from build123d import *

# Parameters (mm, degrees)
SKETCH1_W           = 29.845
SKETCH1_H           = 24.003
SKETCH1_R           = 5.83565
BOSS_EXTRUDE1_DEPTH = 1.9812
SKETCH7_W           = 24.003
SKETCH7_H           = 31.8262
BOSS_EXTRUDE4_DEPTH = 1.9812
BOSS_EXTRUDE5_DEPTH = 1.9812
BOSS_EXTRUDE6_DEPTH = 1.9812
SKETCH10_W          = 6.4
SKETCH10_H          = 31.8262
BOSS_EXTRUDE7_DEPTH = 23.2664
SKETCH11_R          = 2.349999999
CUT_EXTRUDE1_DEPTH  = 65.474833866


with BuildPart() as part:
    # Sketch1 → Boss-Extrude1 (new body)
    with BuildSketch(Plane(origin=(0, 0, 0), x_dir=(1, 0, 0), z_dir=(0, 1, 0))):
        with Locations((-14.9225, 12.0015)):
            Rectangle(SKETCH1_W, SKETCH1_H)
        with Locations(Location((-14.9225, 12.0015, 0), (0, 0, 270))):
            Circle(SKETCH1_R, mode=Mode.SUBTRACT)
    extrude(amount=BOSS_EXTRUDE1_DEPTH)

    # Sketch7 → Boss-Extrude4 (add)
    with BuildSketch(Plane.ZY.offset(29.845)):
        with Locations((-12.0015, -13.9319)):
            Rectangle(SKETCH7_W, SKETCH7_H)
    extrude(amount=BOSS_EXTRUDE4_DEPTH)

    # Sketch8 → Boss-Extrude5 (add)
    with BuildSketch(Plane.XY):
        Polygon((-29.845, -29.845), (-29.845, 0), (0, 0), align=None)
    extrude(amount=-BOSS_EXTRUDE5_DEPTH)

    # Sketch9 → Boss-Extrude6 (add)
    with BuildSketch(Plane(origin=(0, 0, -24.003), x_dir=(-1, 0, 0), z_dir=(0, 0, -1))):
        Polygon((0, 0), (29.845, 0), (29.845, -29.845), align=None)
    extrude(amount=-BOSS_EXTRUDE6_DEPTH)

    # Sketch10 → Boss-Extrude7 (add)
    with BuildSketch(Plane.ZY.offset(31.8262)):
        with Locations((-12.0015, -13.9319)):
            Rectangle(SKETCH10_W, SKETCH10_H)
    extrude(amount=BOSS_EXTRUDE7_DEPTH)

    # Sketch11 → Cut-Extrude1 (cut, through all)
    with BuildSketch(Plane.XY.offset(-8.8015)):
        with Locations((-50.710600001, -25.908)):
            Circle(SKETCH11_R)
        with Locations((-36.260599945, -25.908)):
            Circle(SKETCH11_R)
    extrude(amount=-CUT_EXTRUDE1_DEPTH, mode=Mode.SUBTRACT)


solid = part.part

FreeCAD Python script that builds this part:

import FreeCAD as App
import Part
import Sketcher
Q = App.Units.Quantity


def add_polygon(sketch, points):
    """Adds a closed chain of lines whose ends are joined by coincident constraints."""
    first, n = sketch.GeometryCount, len(points)
    for a, b in zip(points, points[1:] + points[:1]):
        sketch.addGeometry(Part.LineSegment(App.Vector(*a, 0), App.Vector(*b, 0)), False)
    for i in range(n):
        sketch.addConstraint(Sketcher.Constraint("Coincident", first + i, 2, first + (i + 1) % n, 1))

doc = App.newDocument("Part")
body = doc.addObject("PartDesign::Body", "Body")

# Sketch on XZ plane
sketch1 = body.newObject("Sketcher::SketchObject", "Sketch")
sketch1.AttachmentSupport = (doc.getObject("XZ_Plane"), [""])
sketch1.MapMode = "FlatFace"
add_polygon(sketch1, [(-30, -24), (-30, 0), (0, 0), (0, -24)])  # lines 0-3
sketch1.addGeometry(Part.Circle(App.Vector(-15, -12, 0), App.Vector(0, 0, 1), 6), False)  # 4
sketch1.addConstraint(Sketcher.Constraint("Vertical", 0))
sketch1.addConstraint(Sketcher.Constraint("Horizontal", 1))
sketch1.addConstraint(Sketcher.Constraint("Vertical", 2))
sketch1.addConstraint(Sketcher.Constraint("Horizontal", 3))
sketch1.addConstraint(Sketcher.Constraint("Coincident", 1, 2, -1, 1))
sketch1.addConstraint(Sketcher.Constraint("Diameter", 4, Q("0.4595 in")))
sketch1.addConstraint(Sketcher.Constraint("DistanceX", 1, 1, 1, 2, Q("1.175 in")))
sketch1.addConstraint(Sketcher.Constraint("DistanceY", 0, 1, 0, 2, Q("0.945 in")))
sketch1.addConstraint(Sketcher.Constraint("DistanceX", 4, 3, -1, 1, Q("0.5875 in")))
sketch1.addConstraint(Sketcher.Constraint("DistanceY", 4, 3, -1, 1, Q("0.4725 in")))
pad1 = body.newObject("PartDesign::Pad", "Pad")
pad1.Profile = sketch1
pad1.Length = Q("0.078 in")
pad1.Reversed = True

# Sketch on YZ plane
sketch2 = body.newObject("Sketcher::SketchObject", "Sketch001")
sketch2.AttachmentSupport = (doc.getObject("YZ_Plane"), [""])
sketch2.MapMode = "FlatFace"
sketch2.AttachmentOffset = App.Placement(App.Vector(0, 0, -1.175 * 25.4), App.Rotation())
add_polygon(sketch2, [(2, -24), (-30, -24), (-30, 0), (2, 0)])  # lines 0-3
sketch2.addConstraint(Sketcher.Constraint("Horizontal", 0))
sketch2.addConstraint(Sketcher.Constraint("Vertical", 1))
sketch2.addConstraint(Sketcher.Constraint("Horizontal", 2))
sketch2.addConstraint(Sketcher.Constraint("Vertical", 3))
sketch2.addConstraint(Sketcher.Constraint("PointOnObject", 1, 2, -1))
sketch2.addConstraint(Sketcher.Constraint("DistanceX", 0, 2, 0, 1, Q("1.253 in")))
sketch2.addConstraint(Sketcher.Constraint("DistanceY", 1, 1, 1, 2, Q("0.945 in")))
sketch2.addConstraint(Sketcher.Constraint("DistanceX", 0, 2, -1, 1, Q("1.175 in")))
pad2 = body.newObject("PartDesign::Pad", "Pad001")
pad2.Profile = sketch2
pad2.Length = Q("0.078 in")
pad2.Reversed = True

# Sketch on XY plane
sketch3 = body.newObject("Sketcher::SketchObject", "Sketch002")
sketch3.AttachmentSupport = (doc.getObject("XY_Plane"), [""])
sketch3.MapMode = "FlatFace"
add_polygon(sketch3, [(-30, 0), (-30, -30), (0, 0)])  # lines 0-2
sketch3.addConstraint(Sketcher.Constraint("Vertical", 0))
sketch3.addConstraint(Sketcher.Constraint("Horizontal", 2))
sketch3.addConstraint(Sketcher.Constraint("Coincident", 1, 2, -1, 1))
sketch3.addConstraint(Sketcher.Constraint("Equal", 2, 0))
sketch3.addConstraint(Sketcher.Constraint("DistanceX", 2, 2, 2, 1, Q("1.175 in")))
pad3 = body.newObject("PartDesign::Pad", "Pad002")
pad3.Profile = sketch3
pad3.Length = Q("0.078 in")
pad3.Reversed = True

# Sketch on XY plane
sketch4 = body.newObject("Sketcher::SketchObject", "Sketch003")
sketch4.AttachmentSupport = (doc.getObject("XY_Plane"), [""])
sketch4.MapMode = "FlatFace"
sketch4.AttachmentOffset = App.Placement(App.Vector(0, 0, -0.945 * 25.4), App.Rotation())
add_polygon(sketch4, [(-30, 0), (0, 0), (-30, -30)])  # lines 0-2
sketch4.addConstraint(Sketcher.Constraint("Horizontal", 0))
sketch4.addConstraint(Sketcher.Constraint("Vertical", 2))
sketch4.addConstraint(Sketcher.Constraint("Coincident", 0, 2, -1, 1))
sketch4.addConstraint(Sketcher.Constraint("Equal", 0, 2))
sketch4.addConstraint(Sketcher.Constraint("DistanceX", 0, 1, 0, 2, Q("1.175 in")))
pad4 = body.newObject("PartDesign::Pad", "Pad003")
pad4.Profile = sketch4
pad4.Length = Q("0.078 in")

# Sketch on YZ plane
sketch5 = body.newObject("Sketcher::SketchObject", "Sketch004")
sketch5.AttachmentSupport = (doc.getObject("YZ_Plane"), [""])
sketch5.MapMode = "FlatFace"
sketch5.AttachmentOffset = App.Placement(App.Vector(0, 0, -1.253 * 25.4), App.Rotation())
add_polygon(sketch5, [(2, -15), (-30, -15), (-30, -9), (2, -9)])  # lines 0-3
sketch5.addConstraint(Sketcher.Constraint("Horizontal", 0))
sketch5.addConstraint(Sketcher.Constraint("Vertical", 1))
sketch5.addConstraint(Sketcher.Constraint("Horizontal", 2))
sketch5.addConstraint(Sketcher.Constraint("Vertical", 3))
sketch5.addConstraint(Sketcher.Constraint("DistanceX", 0, 2, 0, 1, Q("1.253 in")))
sketch5.addConstraint(Sketcher.Constraint("DistanceX", 0, 2, -1, 1, Q("1.175 in")))
sketch5.addConstraint(Sketcher.Constraint("DistanceY", 1, 1, 1, 2, 6.4))
sketch5.addConstraint(Sketcher.Constraint("DistanceY", 0, 2, -1, 1, 15.2015))
pad5 = body.newObject("PartDesign::Pad", "Pad004")
pad5.Profile = sketch5
pad5.Length = Q("0.916 in")
pad5.Reversed = True

# Sketch on XY plane
sketch6 = body.newObject("Sketcher::SketchObject", "Sketch005")
sketch6.AttachmentSupport = (doc.getObject("XY_Plane"), [""])
sketch6.MapMode = "FlatFace"
sketch6.AttachmentOffset = App.Placement(App.Vector(0, 0, -8.8015), App.Rotation())
sketch6.addGeometry(Part.Circle(App.Vector(-50.7, -25.9, 0), App.Vector(0, 0, 1), 2.3), False)
sketch6.addGeometry(Part.Circle(App.Vector(-36.3, -25.9, 0), App.Vector(0, 0, 1), 2.3), False)
sketch6.addConstraint(Sketcher.Constraint("Equal", 0, 1))
sketch6.addConstraint(Sketcher.Constraint("Horizontal", 0, 3, 1, 3))
sketch6.addConstraint(Sketcher.Constraint("Diameter", 0, 4.7))
sketch6.addConstraint(Sketcher.Constraint("DistanceY", 0, 3, -1, 1, Q("1.02 in")))
sketch6.addConstraint(Sketcher.Constraint("DistanceX", 0, 3, -1, 1, 50.7106))
sketch6.addConstraint(Sketcher.Constraint("DistanceX", 1, 3, -1, 1, 36.2606))
pocket1 = body.newObject("PartDesign::Pocket", "Pocket")
pocket1.Profile = sketch6
pocket1.Type = "ThroughAll"

doc.recompute()
